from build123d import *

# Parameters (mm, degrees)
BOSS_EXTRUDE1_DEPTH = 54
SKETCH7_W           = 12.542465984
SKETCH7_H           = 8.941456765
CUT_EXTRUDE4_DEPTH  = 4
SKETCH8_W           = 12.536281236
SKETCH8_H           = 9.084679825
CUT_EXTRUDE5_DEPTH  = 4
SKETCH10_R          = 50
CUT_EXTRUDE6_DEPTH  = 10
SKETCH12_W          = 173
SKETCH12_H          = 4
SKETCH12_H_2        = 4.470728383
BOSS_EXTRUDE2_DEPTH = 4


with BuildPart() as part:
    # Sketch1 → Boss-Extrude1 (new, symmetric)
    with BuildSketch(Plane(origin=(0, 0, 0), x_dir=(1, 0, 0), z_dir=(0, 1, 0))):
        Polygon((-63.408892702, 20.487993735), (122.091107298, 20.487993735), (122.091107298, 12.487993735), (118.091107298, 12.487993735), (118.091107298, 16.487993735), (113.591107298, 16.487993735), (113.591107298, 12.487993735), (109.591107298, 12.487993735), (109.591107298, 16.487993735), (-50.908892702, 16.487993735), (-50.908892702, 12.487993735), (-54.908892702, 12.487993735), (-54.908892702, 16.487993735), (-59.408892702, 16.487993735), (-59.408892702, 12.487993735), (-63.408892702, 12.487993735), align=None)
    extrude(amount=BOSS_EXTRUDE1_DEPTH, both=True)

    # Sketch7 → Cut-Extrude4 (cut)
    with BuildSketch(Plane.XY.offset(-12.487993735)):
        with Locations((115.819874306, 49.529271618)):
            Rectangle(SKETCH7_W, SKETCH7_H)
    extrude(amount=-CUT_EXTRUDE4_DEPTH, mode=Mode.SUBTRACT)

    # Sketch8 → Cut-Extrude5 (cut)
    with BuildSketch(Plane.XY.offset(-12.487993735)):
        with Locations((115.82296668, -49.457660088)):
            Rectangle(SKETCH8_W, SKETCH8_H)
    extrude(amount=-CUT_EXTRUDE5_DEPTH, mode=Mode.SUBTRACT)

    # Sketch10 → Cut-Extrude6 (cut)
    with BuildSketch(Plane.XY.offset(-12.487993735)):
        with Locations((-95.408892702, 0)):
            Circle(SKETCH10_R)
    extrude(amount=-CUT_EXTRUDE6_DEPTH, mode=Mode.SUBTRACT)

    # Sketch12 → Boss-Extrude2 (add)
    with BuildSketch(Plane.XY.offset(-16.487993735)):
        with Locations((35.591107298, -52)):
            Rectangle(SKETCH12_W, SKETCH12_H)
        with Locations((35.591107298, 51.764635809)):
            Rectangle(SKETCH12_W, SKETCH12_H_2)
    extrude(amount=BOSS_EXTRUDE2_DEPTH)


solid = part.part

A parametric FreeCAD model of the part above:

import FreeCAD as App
import Part
import Sketcher

doc = App.newDocument("Part")
body = doc.addObject("PartDesign::Body", "Body")

# Sketch on XZ plane
sketch1 = body.newObject("Sketcher::SketchObject", "Sketch")
sketch1.AttachmentSupport = (doc.getObject("XZ_Plane"), [""])
sketch1.MapMode = "FlatFace"
sketch1.addGeometry([
    Part.LineSegment(App.Vector(122.091107, -20.487994, 0), App.Vector(-63.408893, -20.487994, 0)),  # 0
    Part.LineSegment(App.Vector(-63.408893, -20.487994, 0), App.Vector(-63.408893, -12.487994, 0)),  # 1
    Part.LineSegment(App.Vector(-63.408893, -12.487994, 0), App.Vector(-59.408893, -12.487994, 0)),  # 2
    Part.LineSegment(App.Vector(-59.408893, -12.487994, 0), App.Vector(-59.408893, -16.487994, 0)),  # 3
    Part.LineSegment(App.Vector(-59.408893, -16.487994, 0), App.Vector(-54.908893, -16.487994, 0)),  # 4
    Part.LineSegment(App.Vector(-54.908893, -16.487994, 0), App.Vector(-54.908893, -12.487994, 0)),  # 5
    Part.LineSegment(App.Vector(-54.908893, -12.487994, 0), App.Vector(-50.908893, -12.487994, 0)),  # 6
    Part.LineSegment(App.Vector(-50.908893, -12.487994, 0), App.Vector(-50.908893, -16.487994, 0)),  # 7
    Part.LineSegment(App.Vector(-50.908893, -16.487994, 0), App.Vector(109.591107, -16.487994, 0)),  # 8
    Part.LineSegment(App.Vector(109.591107, -16.487994, 0), App.Vector(109.591107, -12.487994, 0)),  # 9
    Part.LineSegment(App.Vector(109.591107, -12.487994, 0), App.Vector(113.591107, -12.487994, 0)),  # 10
    Part.LineSegment(App.Vector(113.591107, -12.487994, 0), App.Vector(113.591107, -16.487994, 0)),  # 11
    Part.LineSegment(App.Vector(113.591107, -16.487994, 0), App.Vector(118.091107, -16.487994, 0)),  # 12
    Part.LineSegment(App.Vector(118.091107, -16.487994, 0), App.Vector(118.091107, -12.487994, 0)),  # 13
    Part.LineSegment(App.Vector(118.091107, -12.487994, 0), App.Vector(122.091107, -12.487994, 0)),  # 14
    Part.LineSegment(App.Vector(122.091107, -12.487994, 0), App.Vector(122.091107, -20.487994, 0)),  # 15
], False)
sketch1.addConstraint([
    Sketcher.Constraint("Coincident", 0, 2, 1, 1),
    Sketcher.Constraint("Coincident", 1, 2, 2, 1),
    Sketcher.Constraint("Coincident", 2, 2, 3, 1),
    Sketcher.Constraint("Coincident", 3, 2, 4, 1),
    Sketcher.Constraint("Coincident", 4, 2, 5, 1),
    Sketcher.Constraint("Coincident", 5, 2, 6, 1),
    Sketcher.Constraint("Coincident", 6, 2, 7, 1),
    Sketcher.Constraint("Coincident", 7, 2, 8, 1),
    Sketcher.Constraint("Coincident", 8, 2, 9, 1),
    Sketcher.Constraint("Coincident", 9, 2, 10, 1),
    Sketcher.Constraint("Coincident", 10, 2, 11, 1),
    Sketcher.Constraint("Coincident", 11, 2, 12, 1),
    Sketcher.Constraint("Coincident", 12, 2, 13, 1),
    Sketcher.Constraint("Coincident", 13, 2, 14, 1),
    Sketcher.Constraint("Coincident", 14, 2, 15, 1),
    Sketcher.Constraint("Coincident", 15, 2, 0, 1),
    Sketcher.Constraint("Horizontal", 0),
    Sketcher.Constraint("Vertical", 1),
    Sketcher.Constraint("Horizontal", 2),
    Sketcher.Constraint("Vertical", 3),
    Sketcher.Constraint("Horizontal", 4),
    Sketcher.Constraint("Vertical", 5),
    Sketcher.Constraint("Horizontal", 6),
    Sketcher.Constraint("Vertical", 7),
    Sketcher.Constraint("Horizontal", 8),
    Sketcher.Constraint("Vertical", 9),
    Sketcher.Constraint("Horizontal", 10),
    Sketcher.Constraint("Vertical", 11),
    Sketcher.Constraint("Horizontal", 12),
    Sketcher.Constraint("Vertical", 13),
    Sketcher.Constraint("Horizontal", 14),
    Sketcher.Constraint("Vertical", 15),
    Sketcher.Constraint("Horizontal", 2, 2, 5, 2),
    Sketcher.Constraint("Horizontal", 4, 2, 7, 2),
    Sketcher.Constraint("Horizontal", 6, 2, 9, 2),
    Sketcher.Constraint("Horizontal", 8, 2, 11, 2),
    Sketcher.Constraint("Horizontal", 10, 2, 13, 2),
    Sketcher.Constraint("Equal", 2, 6),
    Sketcher.Constraint("Equal", 6, 10),
    Sketcher.Constraint("Equal", 4, 12),
    Sketcher.Constraint("Equal", 10, 14),
    Sketcher.Constraint("Equal", 14, 3),
    Sketcher.Constraint("DistanceX", 2, 1, 2, 2, 4.0),
    Sketcher.Constraint("DistanceY", 1, 1, 1, 2, 8.0),
    Sketcher.Constraint("DistanceX", 0, 2, 0, 1, 185.5),
    Sketcher.Constraint("DistanceX", 4, 1, 4, 2, 4.5),
    Sketcher.Constraint("DistanceX", 0, 2, -1, 1, 63.408893),
    Sketcher.Constraint("DistanceY", 0, 2, -1, 1, 20.487994),
])
pad1 = body.newObject("PartDesign::Pad", "Pad")
pad1.Profile = sketch1
pad1.Length = 108
pad1.Midplane = True

# Sketch on XY plane
sketch2 = body.newObject("Sketcher::SketchObject", "Sketch001")
sketch2.AttachmentSupport = (doc.getObject("XY_Plane"), [""])
sketch2.MapMode = "FlatFace"
sketch2.AttachmentOffset = App.Placement(App.Vector(0, 0, -12.487994), App.Rotation())
sketch2.addGeometry([
    Part.LineSegment(App.Vector(109.548641, 54, 0), App.Vector(109.548641, 45.058543, 0)),
    Part.LineSegment(App.Vector(109.548641, 45.058543, 0), App.Vector(122.091107, 45.058543, 0)),
    Part.LineSegment(App.Vector(122.091107, 45.058543, 0), App.Vector(122.091107, 54, 0)),
    Part.LineSegment(App.Vector(122.091107, 54, 0), App.Vector(109.548641, 54, 0)),
], False)
sketch2.addConstraint([
    Sketcher.Constraint("Coincident", 0, 2, 1, 1),
    Sketcher.Constraint("Coincident", 1, 2, 2, 1),
    Sketcher.Constraint("Coincident", 2, 2, 3, 1),
    Sketcher.Constraint("Coincident", 3, 2, 0, 1),
    Sketcher.Constraint("Vertical", 0),
    Sketcher.Constraint("Horizontal", 1),
    Sketcher.Constraint("Vertical", 2),
    Sketcher.Constraint("Horizontal", 3),
    Sketcher.Constraint("DistanceY", -1, 1, 2, 2, 54.0),
    Sketcher.Constraint("DistanceX", 1, 1, 1, 2, 12.542466),
    Sketcher.Constraint("DistanceY", 0, 2, 0, 1, 8.941457),
    Sketcher.Constraint("DistanceX", -1, 1, 0, 2, 109.548641),
])
pocket1 = body.newObject("PartDesign::Pocket", "Pocket")
pocket1.Profile = sketch2
pocket1.Length = 4

# Sketch on XY plane
sketch3 = body.newObject("Sketcher::SketchObject", "Sketch002")
sketch3.AttachmentSupport = (doc.getObject("XY_Plane"), [""])
sketch3.MapMode = "FlatFace"
sketch3.AttachmentOffset = App.Placement(App.Vector(0, 0, -12.487994), App.Rotation())
sketch3.addGeometry([
    Part.LineSegment(App.Vector(109.554826, -44.91532, 0), App.Vector(109.554826, -54, 0)),
    Part.LineSegment(App.Vector(109.554826, -54, 0), App.Vector(122.091107, -54, 0)),
    Part.LineSegment(App.Vector(122.091107, -54, 0), App.Vector(122.091107, -44.91532, 0)),
    Part.LineSegment(App.Vector(122.091107, -44.91532, 0), App.Vector(109.554826, -44.91532, 0)),
], False)
sketch3.addConstraint([
    Sketcher.Constraint("Coincident", 0, 2, 1, 1),
    Sketcher.Constraint("Coincident", 1, 2, 2, 1),
    Sketcher.Constraint("Coincident", 2, 2, 3, 1),
    Sketcher.Constraint("Coincident", 3, 2, 0, 1),
    Sketcher.Constraint("Vertical", 0),
    Sketcher.Constraint("Horizontal", 1),
    Sketcher.Constraint("Vertical", 2),
    Sketcher.Constraint("Horizontal", 3),
    Sketcher.Constraint("DistanceY", 0, 2, -1, 1, 54.0),
    Sketcher.Constraint("DistanceX", 1, 1, 1, 2, 12.536281),
    Sketcher.Constraint("DistanceY", 0, 2, 0, 1, 9.08468),
    Sketcher.Constraint("DistanceX", -1, 1, 0, 2, 109.554826),
])
pocket2 = body.newObject("PartDesign::Pocket", "Pocket001")
pocket2.Profile = sketch3
pocket2.Length = 4

# Sketch on XY plane
sketch4 = body.newObject("Sketcher::SketchObject", "Sketch003")
sketch4.AttachmentSupport = (doc.getObject("XY_Plane"), [""])
sketch4.MapMode = "FlatFace"
sketch4.AttachmentOffset = App.Placement(App.Vector(0, 0, -12.487994), App.Rotation())
sketch4.addGeometry(Part.Circle(App.Vector(-95.408893, 0, 0), App.Vector(0, 0, 1), 50), False)
sketch4.addConstraint([
    Sketcher.Constraint("PointOnObject", 0, 3, -1),
    Sketcher.Constraint("Diameter", 0, 100.0),
    Sketcher.Constraint("DistanceX", 0, 3, -1, 1, 95.408893),
])
pocket3 = body.newObject("PartDesign::Pocket", "Pocket002")
pocket3.Profile = sketch4
pocket3.Length = 10

# Sketch on XY plane
sketch5 = body.newObject("Sketcher::SketchObject", "Sketch004")
sketch5.AttachmentSupport = (doc.getObject("XY_Plane"), [""])
sketch5.MapMode = "FlatFace"
sketch5.AttachmentOffset = App.Placement(App.Vector(0, 0, -16.487994), App.Rotation())
sketch5.addGeometry([
    Part.LineSegment(App.Vector(-50.908893, -50, 0), App.Vector(-50.908893, -54, 0)),  # 0
    Part.LineSegment(App.Vector(-50.908893, -54, 0), App.Vector(122.091107, -54, 0)),  # 1
    Part.LineSegment(App.Vector(122.091107, -54, 0), App.Vector(122.091107, -50, 0)),  # 2
    Part.LineSegment(App.Vector(122.091107, -50, 0), App.Vector(-50.908893, -50, 0)),  # 3
    Part.LineSegment(App.Vector(-50.908893, 54, 0), App.Vector(-50.908893, 49.529272, 0)),  # 4
    Part.LineSegment(App.Vector(-50.908893, 49.529272, 0), App.Vector(122.091107, 49.529272, 0)),  # 5
    Part.LineSegment(App.Vector(122.091107, 49.529272, 0), App.Vector(122.091107, 54, 0)),  # 6
    Part.LineSegment(App.Vector(122.091107, 54, 0), App.Vector(-50.908893, 54, 0)),  # 7
], False)
sketch5.addConstraint([
    Sketcher.Constraint("Coincident", 0, 2, 1, 1),
    Sketcher.Constraint("Coincident", 1, 2, 2, 1),
    Sketcher.Constraint("Coincident", 2, 2, 3, 1),
    Sketcher.Constraint("Coincident", 3, 2, 0, 1),
    Sketcher.Constraint("Coincident", 4, 2, 5, 1),
    Sketcher.Constraint("Coincident", 5, 2, 6, 1),
    Sketcher.Constraint("Coincident", 6, 2, 7, 1),
    Sketcher.Constraint("Coincident", 7, 2, 4, 1),
    Sketcher.Constraint("Vertical", 0),
    Sketcher.Constraint("Horizontal", 1),
    Sketcher.Constraint("Vertical", 2),
    Sketcher.Constraint("Horizontal", 3),
    Sketcher.Constraint("Vertical", 4),
    Sketcher.Constraint("Horizontal", 5),
    Sketcher.Constraint("Vertical", 6),
    Sketcher.Constraint("Horizontal", 7),
    Sketcher.Constraint("Symmetric", 1, 2, 6, 2, -1),
    Sketcher.Constraint("Vertical", 3, 2, 4, 2),
    Sketcher.Constraint("DistanceX", 1, 1, 1, 2, 173.0),
    Sketcher.Constraint("DistanceY", 0, 2, 0, 1, 4.0),
    Sketcher.Constraint("DistanceY", 0, 2, -1, 1, 54.0),
    Sketcher.Constraint("DistanceY", 4, 2, 4, 1, 4.470728),
    Sketcher.Constraint("DistanceX", 0, 2, -1, 1, 50.908893),
])
pad2 = body.newObject("PartDesign::Pad", "Pad001")
pad2.Profile = sketch5
pad2.Length = 4

doc.recompute()
